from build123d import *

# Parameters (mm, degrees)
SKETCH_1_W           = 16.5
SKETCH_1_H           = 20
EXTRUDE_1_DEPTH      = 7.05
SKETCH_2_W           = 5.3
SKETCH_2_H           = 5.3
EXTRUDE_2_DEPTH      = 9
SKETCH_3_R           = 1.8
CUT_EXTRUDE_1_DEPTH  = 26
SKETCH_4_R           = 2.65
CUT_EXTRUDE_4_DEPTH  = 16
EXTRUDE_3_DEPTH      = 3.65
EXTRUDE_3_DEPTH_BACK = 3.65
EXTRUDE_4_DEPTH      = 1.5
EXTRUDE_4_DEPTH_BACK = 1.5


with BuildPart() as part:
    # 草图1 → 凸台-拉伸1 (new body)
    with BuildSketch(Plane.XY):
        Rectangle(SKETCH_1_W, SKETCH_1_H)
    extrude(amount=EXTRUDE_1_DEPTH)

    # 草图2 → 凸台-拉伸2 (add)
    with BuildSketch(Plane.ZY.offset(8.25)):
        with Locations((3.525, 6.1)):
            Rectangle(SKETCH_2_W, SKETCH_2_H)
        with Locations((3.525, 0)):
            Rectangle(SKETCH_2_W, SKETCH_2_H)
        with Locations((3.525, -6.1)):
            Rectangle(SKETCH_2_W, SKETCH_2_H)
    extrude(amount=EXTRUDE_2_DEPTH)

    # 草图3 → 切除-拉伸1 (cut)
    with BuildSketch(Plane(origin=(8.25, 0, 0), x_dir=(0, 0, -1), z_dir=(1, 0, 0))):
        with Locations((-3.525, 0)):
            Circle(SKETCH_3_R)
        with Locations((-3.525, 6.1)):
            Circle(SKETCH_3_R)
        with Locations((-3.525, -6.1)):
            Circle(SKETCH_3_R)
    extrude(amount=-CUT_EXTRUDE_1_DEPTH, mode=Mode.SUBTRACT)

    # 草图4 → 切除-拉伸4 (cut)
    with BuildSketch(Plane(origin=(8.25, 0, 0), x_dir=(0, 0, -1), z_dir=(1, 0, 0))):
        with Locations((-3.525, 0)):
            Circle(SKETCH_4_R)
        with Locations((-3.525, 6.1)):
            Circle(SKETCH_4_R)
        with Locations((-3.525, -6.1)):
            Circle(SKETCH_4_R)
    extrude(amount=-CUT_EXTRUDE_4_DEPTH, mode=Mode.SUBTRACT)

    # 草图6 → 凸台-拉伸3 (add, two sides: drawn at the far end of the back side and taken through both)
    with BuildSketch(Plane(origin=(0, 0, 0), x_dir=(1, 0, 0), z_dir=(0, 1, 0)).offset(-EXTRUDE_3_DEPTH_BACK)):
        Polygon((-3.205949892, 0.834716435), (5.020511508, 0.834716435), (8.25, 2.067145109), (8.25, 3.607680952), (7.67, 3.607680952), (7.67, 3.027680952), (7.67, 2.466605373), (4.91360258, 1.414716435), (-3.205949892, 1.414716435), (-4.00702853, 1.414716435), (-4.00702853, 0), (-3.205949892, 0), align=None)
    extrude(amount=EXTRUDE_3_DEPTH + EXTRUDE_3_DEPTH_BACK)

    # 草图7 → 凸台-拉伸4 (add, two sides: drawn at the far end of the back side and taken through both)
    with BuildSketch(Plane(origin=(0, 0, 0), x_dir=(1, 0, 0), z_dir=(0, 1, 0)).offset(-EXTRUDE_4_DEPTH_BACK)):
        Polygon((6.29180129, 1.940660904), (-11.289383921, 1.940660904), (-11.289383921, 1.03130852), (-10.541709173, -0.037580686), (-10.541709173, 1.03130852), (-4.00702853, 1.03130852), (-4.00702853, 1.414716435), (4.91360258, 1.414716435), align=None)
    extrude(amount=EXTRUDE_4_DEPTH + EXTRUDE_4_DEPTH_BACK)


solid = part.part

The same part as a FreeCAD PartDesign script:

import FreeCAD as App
import Part
import Sketcher
from FreeCAD import Vector
Q = App.Units.Quantity

doc = App.newDocument("Part")
params = doc.addObject("Spreadsheet::Sheet", "Params")
for row, (alias, value) in enumerate([
    ("sketch1_height", "20 mm"),
    ("sketch1_width", "16.5 mm"),
    ("pad1_length", "7.05 mm"),
    ("sketch2_width", "5.3 mm"),
    ("pad2_length", "9 mm"),
    ("sketch3_diameter", "3.6 mm"),
    ("pocket1_length", "26 mm"),
    ("sketch4_diameter", "5.3 mm"),
    ("pocket2_length", "16 mm"),
    ("sketch5_width", "0.58 mm"),
    ("pad3_length", "3.65 mm"),
    ("pad3_length2", "3.65 mm"),
    ("pad4_length", "1.5 mm"),
    ("pad4_length2", "1.5 mm"),
], start=1):
    params.set(f"A{row}", alias)
    params.set(f"B{row}", "=" + value)
    params.setAlias(f"B{row}", alias)

body = doc.addObject("PartDesign::Body", "Body")

# Sketch on XY plane
sketch1 = body.newObject("Sketcher::SketchObject", "Sketch")
sketch1.AttachmentSupport = (doc.getObject("XY_Plane"), [""])
sketch1.MapMode = "FlatFace"
sketch1.addGeometry(Part.LineSegment(Vector(-8, 10, 0), Vector(-8, -10, 0)), False)
sketch1.addGeometry(Part.LineSegment(Vector(-8, -10, 0), Vector(8, -10, 0)), False)
sketch1.addGeometry(Part.LineSegment(Vector(8, -10, 0), Vector(8, 10, 0)), False)
sketch1.addGeometry(Part.LineSegment(Vector(8, 10, 0), Vector(-8, 10, 0)), False)
sketch1.addConstraint(Sketcher.Constraint("Coincident", 0, 2, 1, 1))
sketch1.addConstraint(Sketcher.Constraint("Coincident", 1, 2, 2, 1))
sketch1.addConstraint(Sketcher.Constraint("Coincident", 2, 2, 3, 1))
sketch1.addConstraint(Sketcher.Constraint("Coincident", 3, 2, 0, 1))
sketch1.addConstraint(Sketcher.Constraint("Vertical", 0))
sketch1.addConstraint(Sketcher.Constraint("Horizontal", 1))
sketch1.addConstraint(Sketcher.Constraint("Vertical", 2))
sketch1.addConstraint(Sketcher.Constraint("Horizontal", 3))
sketch1.addConstraint(Sketcher.Constraint("Symmetric", 0, 2, 2, 2, -1, 1))
sketch1.addConstraint(Sketcher.Constraint("DistanceY", 0, 2, 0, 1, Q("20 mm")))
sketch1.addConstraint(Sketcher.Constraint("DistanceX", 1, 1, 1, 2, Q("16.5 mm")))
sketch1.setExpression("Constraints[9]", "Params.sketch1_height")
sketch1.setExpression("Constraints[10]", "Params.sketch1_width")
pad1 = body.newObject("PartDesign::Pad", "Pad")
pad1.Profile = sketch1
pad1.setExpression("Length", "Params.pad1_length")

# Sketch on YZ plane
sketch2 = body.newObject("Sketcher::SketchObject", "Sketch001")
sketch2.AttachmentSupport = (doc.getObject("YZ_Plane"), [""])
sketch2.MapMode = "FlatFace"
sketch2.AttachmentOffset = App.Placement(Vector(0, 0, -8.25), App.Rotation())
sketch2.addGeometry(Part.LineSegment(Vector(9, 1, 0), Vector(3, 1, 0)), False)
sketch2.addGeometry(Part.LineSegment(Vector(3, 1, 0), Vector(3, 6, 0)), False)
sketch2.addGeometry(Part.LineSegment(Vector(3, 6, 0), Vector(9, 6, 0)), False)
sketch2.addGeometry(Part.LineSegment(Vector(9, 6, 0), Vector(9, 1, 0)), False)
sketch2.addGeometry(Part.LineSegment(Vector(3, 1, 0), Vector(-3, 1, 0)), False)
sketch2.addGeometry(Part.LineSegment(Vector(-3, 1, 0), Vector(-3, 6, 0)), False)
sketch2.addGeometry(Part.LineSegment(Vector(-3, 6, 0), Vector(3, 6, 0)), False)
sketch2.addGeometry(Part.LineSegment(Vector(3, 6, 0), Vector(3, 1, 0)), False)
sketch2.addGeometry(Part.LineSegment(Vector(-3, 1, 0), Vector(-9, 1, 0)), False)
sketch2.addGeometry(Part.LineSegment(Vector(-9, 1, 0), Vector(-9, 6, 0)), False)
sketch2.addGeometry(Part.LineSegment(Vector(-9, 6, 0), Vector(-3, 6, 0)), False)
sketch2.addGeometry(Part.LineSegment(Vector(-3, 6, 0), Vector(-3, 1, 0)), False)
sketch2.addConstraint(Sketcher.Constraint("Coincident", 0, 2, 1, 1))
sketch2.addConstraint(Sketcher.Constraint("Coincident", 1, 2, 2, 1))
sketch2.addConstraint(Sketcher.Constraint("Coincident", 2, 2, 3, 1))
sketch2.addConstraint(Sketcher.Constraint("Coincident", 3, 2, 0, 1))
sketch2.addConstraint(Sketcher.Constraint("Coincident", 4, 2, 5, 1))
sketch2.addConstraint(Sketcher.Constraint("Coincident", 5, 2, 6, 1))
sketch2.addConstraint(Sketcher.Constraint("Coincident", 6, 2, 7, 1))
sketch2.addConstraint(Sketcher.Constraint("Coincident", 7, 2, 4, 1))
sketch2.addConstraint(Sketcher.Constraint("Coincident", 8, 2, 9, 1))
sketch2.addConstraint(Sketcher.Constraint("Coincident", 9, 2, 10, 1))
sketch2.addConstraint(Sketcher.Constraint("Coincident", 10, 2, 11, 1))
sketch2.addConstraint(Sketcher.Constraint("Coincident", 11, 2, 8, 1))
sketch2.addConstraint(Sketcher.Constraint("Horizontal", 0))
sketch2.addConstraint(Sketcher.Constraint("Vertical", 1))
sketch2.addConstraint(Sketcher.Constraint("Horizontal", 2))
sketch2.addConstraint(Sketcher.Constraint("Vertical", 3))
sketch2.addConstraint(Sketcher.Constraint("Horizontal", 4))
sketch2.addConstraint(Sketcher.Constraint("Vertical", 5))
sketch2.addConstraint(Sketcher.Constraint("Horizontal", 6))
sketch2.addConstraint(Sketcher.Constraint("Vertical", 7))
sketch2.addConstraint(Sketcher.Constraint("Horizontal", 8))
sketch2.addConstraint(Sketcher.Constraint("Vertical", 9))
sketch2.addConstraint(Sketcher.Constraint("Horizontal", 10))
sketch2.addConstraint(Sketcher.Constraint("Vertical", 11))
sketch2.addConstraint(Sketcher.Constraint("Symmetric", 3, 2, 8, 2, -2))
sketch2.addConstraint(Sketcher.Constraint("Symmetric", 1, 2, 10, 2, -2))
sketch2.addConstraint(Sketcher.Constraint("Horizontal", 3, 2, 4, 2))
sketch2.addConstraint(Sketcher.Constraint("Horizontal", 2, 2, 5, 2))
sketch2.addConstraint(Sketcher.Constraint("Equal", 2, 4))
sketch2.addConstraint(Sketcher.Constraint("Equal", 10, 1))
sketch2.addConstraint(Sketcher.Constraint("DistanceX", 0, 2, 0, 1, Q("5.3 mm")))
sketch2.addConstraint(Sketcher.Constraint("DistanceX", 4, 2, 0, 2, Q("6.1 mm")))
sketch2.addConstraint(Sketcher.Constraint("DistanceX", 8, 2, 4, 2, Q("6.1 mm")))
sketch2.addConstraint(Sketcher.Constraint("DistanceY", -1, 1, 0, 2, Q("0.875 mm")))
sketch2.setExpression("Constraints[30]", "Params.sketch2_width")
pad2 = body.newObject("PartDesign::Pad", "Pad001")
pad2.Profile = sketch2
pad2.setExpression("Length", "Params.pad2_length")
pad2.Reversed = True

# Sketch on YZ plane
sketch3 = body.newObject("Sketcher::SketchObject", "Sketch002")
sketch3.AttachmentSupport = (doc.getObject("YZ_Plane"), [""])
sketch3.MapMode = "FlatFace"
sketch3.AttachmentOffset = App.Placement(Vector(0, 0, 8.25), App.Rotation())
sketch3.addGeometry(Part.Circle(Vector(0, 3.5, 0), Vector(0, 0, 1), 1.8), False)
sketch3.addGeometry(Part.Circle(Vector(6.1, 3.5, 0), Vector(0, 0, 1), 1.8), False)
sketch3.addGeometry(Part.Circle(Vector(-6.1, 3.5, 0), Vector(0, 0, 1), 1.8), False)
sketch3.addConstraint(Sketcher.Constraint("Equal", 0, 1))
sketch3.addConstraint(Sketcher.Constraint("Equal", 1, 2))
sketch3.addConstraint(Sketcher.Constraint("Symmetric", 1, 3, 2, 3, -2))
sketch3.addConstraint(Sketcher.Constraint("PointOnObject", 0, 3, -2))
sketch3.addConstraint(Sketcher.Constraint("Horizontal", 0, 3, 1, 3))
sketch3.addConstraint(Sketcher.Constraint("Diameter", 0, Q("3.6 mm")))
sketch3.addConstraint(Sketcher.Constraint("DistanceX", -1, 1, 1, 3, Q("6.1 mm")))
sketch3.addConstraint(Sketcher.Constraint("DistanceY", -1, 1, 0, 3, Q("3.525 mm")))
sketch3.setExpression("Constraints[5]", "Params.sketch3_diameter")
pocket1 = body.newObject("PartDesign::Pocket", "Pocket")
pocket1.Profile = sketch3
pocket1.setExpression("Length", "Params.pocket1_length")

# Sketch on YZ plane
sketch4 = body.newObject("Sketcher::SketchObject", "Sketch003")
sketch4.AttachmentSupport = (doc.getObject("YZ_Plane"), [""])
sketch4.MapMode = "FlatFace"
sketch4.AttachmentOffset = App.Placement(Vector(0, 0, 8.25), App.Rotation())
sketch4.addGeometry(Part.Circle(Vector(0, 3.5, 0), Vector(0, 0, 1), 2.6), False)
sketch4.addGeometry(Part.Circle(Vector(6.1, 3.5, 0), Vector(0, 0, 1), 2.6), False)
sketch4.addGeometry(Part.Circle(Vector(-6.1, 3.5, 0), Vector(0, 0, 1), 2.6), False)
sketch4.addConstraint(Sketcher.Constraint("Equal", 0, 1))
sketch4.addConstraint(Sketcher.Constraint("Equal", 1, 2))
sketch4.addConstraint(Sketcher.Constraint("Symmetric", 1, 3, 2, 3, -2))
sketch4.addConstraint(Sketcher.Constraint("PointOnObject", 0, 3, -2))
sketch4.addConstraint(Sketcher.Constraint("Horizontal", 0, 3, 1, 3))
sketch4.addConstraint(Sketcher.Constraint("Diameter", 0, Q("5.3 mm")))
sketch4.addConstraint(Sketcher.Constraint("DistanceX", -1, 1, 1, 3, Q("6.1 mm")))
sketch4.addConstraint(Sketcher.Constraint("DistanceY", -1, 1, 0, 3, Q("3.525 mm")))
sketch4.setExpression("Constraints[5]", "Params.sketch4_diameter")
pocket2 = body.newObject("PartDesign::Pocket", "Pocket001")
pocket2.Profile = sketch4
pocket2.setExpression("Length", "Params.pocket2_length")

# Sketch on XZ plane
sketch5 = body.newObject("Sketcher::SketchObject", "Sketch004")
sketch5.AttachmentSupport = (doc.getObject("XZ_Plane"), [""])
sketch5.MapMode = "FlatFace"
sketch5.addGeometry(Part.LineSegment(Vector(-3.2, -0.8, 0), Vector(5, -0.8, 0)), False)
sketch5.addGeometry(Part.LineSegment(Vector(5, -0.8, 0), Vector(8.2, -2.1, 0)), False)
sketch5.addGeometry(Part.LineSegment(Vector(8.2, -2.1, 0), Vector(8.2, -3.6, 0)), False)
sketch5.addGeometry(Part.LineSegment(Vector(8.2, -3.6, 0), Vector(7.7, -3.6, 0)), False)
sketch5.addGeometry(Part.LineSegment(Vector(7.7, -3.6, 0), Vector(7.7, -2.5, 0)), False)
sketch5.addGeometry(Part.LineSegment(Vector(7.7, -2.5, 0), Vector(4.9, -1.4, 0)), False)
sketch5.addGeometry(Part.LineSegment(Vector(4.9, -1.4, 0), Vector(-4, -1.4, 0)), False)
sketch5.addGeometry(Part.LineSegment(Vector(-4, -1.4, 0), Vector(-4, 0, 0)), False)
sketch5.addGeometry(Part.LineSegment(Vector(-4, 0, 0), Vector(-3.2, 0, 0)), False)
sketch5.addGeometry(Part.LineSegment(Vector(-3.2, 0, 0), Vector(-3.2, -0.8, 0)), False)
sketch5.addConstraint(Sketcher.Constraint("Coincident", 0, 2, 1, 1))
sketch5.addConstraint(Sketcher.Constraint("Coincident", 1, 2, 2, 1))
sketch5.addConstraint(Sketcher.Constraint("Coincident", 2, 2, 3, 1))
sketch5.addConstraint(Sketcher.Constraint("Coincident", 3, 2, 4, 1))
sketch5.addConstraint(Sketcher.Constraint("Coincident", 4, 2, 5, 1))
sketch5.addConstraint(Sketcher.Constraint("Coincident", 5, 2, 6, 1))
sketch5.addConstraint(Sketcher.Constraint("Coincident", 6, 2, 7, 1))
sketch5.addConstraint(Sketcher.Constraint("Coincident", 7, 2, 8, 1))
sketch5.addConstraint(Sketcher.Constraint("Coincident", 8, 2, 9, 1))
sketch5.addConstraint(Sketcher.Constraint("Coincident", 9, 2, 0, 1))
sketch5.addConstraint(Sketcher.Constraint("Horizontal", 0))
sketch5.addConstraint(Sketcher.Constraint("Vertical", 2))
sketch5.addConstraint(Sketcher.Constraint("Horizontal", 3))
sketch5.addConstraint(Sketcher.Constraint("Vertical", 4))
sketch5.addConstraint(Sketcher.Constraint("Horizontal", 6))
sketch5.addConstraint(Sketcher.Constraint("Vertical", 7))
sketch5.addConstraint(Sketcher.Constraint("Horizontal", 8))
sketch5.addConstraint(Sketcher.Constraint("Vertical", 9))
sketch5.addConstraint(Sketcher.Constraint("PointOnObject", 7, 2, -1))
sketch5.addConstraint(Sketcher.Constraint("Parallel", 1, 5))
sketch5.addConstraint(Sketcher.Constraint("DistanceX", 3, 2, 3, 1, Q("0.58 mm")))
sketch5.addConstraint(Sketcher.Constraint("DistanceX", -1, 1, 1, 2, Q("8.25 mm")))
sketch5.addConstraint(Sketcher.Constraint("DistanceY", 5, 2, 0, 2, Q("0.58 mm")))
sketch5.addConstraint(Sketcher.Constraint("DistanceX", 0, 1, 0, 2, Q("8.226461 mm")))
sketch5.addConstraint(Sketcher.Constraint("DistanceX", 6, 2, 6, 1, Q("8.920631 mm")))
sketch5.addConstraint(Sketcher.Constraint("DistanceX", 8, 1, 8, 2, Q("0.801079 mm")))
sketch5.addConstraint(Sketcher.Constraint("DistanceY", 2, 2, 2, 1, Q("1.540536 mm")))
sketch5.addConstraint(Sketcher.Constraint("DistanceY", 4, 1, 4, 2, Q("1.141076 mm")))
sketch5.addConstraint(Sketcher.Constraint("DistanceY", 7, 1, 7, 2, Q("1.414716 mm")))
sketch5.addConstraint(Sketcher.Constraint("DistanceX", -1, 1, 0, 2, Q("5.020512 mm")))
sketch5.setExpression("Constraints[20]", "Params.sketch5_width")
pad3 = body.newObject("PartDesign::Pad", "Pad002")
pad3.Profile = sketch5
pad3.Type = "TwoLengths"
pad3.setExpression("Length", "Params.pad3_length")
pad3.setExpression("Length2", "Params.pad3_length2")
pad3.Reversed = True

# Sketch on XZ plane
sketch6 = body.newObject("Sketcher::SketchObject", "Sketch005")
sketch6.AttachmentSupport = (doc.getObject("XZ_Plane"), [""])
sketch6.MapMode = "FlatFace"
sketch6.addGeometry(Part.LineSegment(Vector(6.29, -1.94, 0), Vector(-11.29, -1.94, 0)), False)
sketch6.addGeometry(Part.LineSegment(Vector(-11.29, -1.94, 0), Vector(-11.29, -1.03, 0)), False)
sketch6.addGeometry(Part.LineSegment(Vector(-11.29, -1.03, 0), Vector(-10.54, 0.04, 0)), False)
sketch6.addGeometry(Part.LineSegment(Vector(-10.54, 0.04, 0), Vector(-10.54, -1.03, 0)), False)
sketch6.addGeometry(Part.LineSegment(Vector(-10.54, -1.03, 0), Vector(-4.01, -1.03, 0)), False)
sketch6.addGeometry(Part.LineSegment(Vector(-4.01, -1.03, 0), Vector(-4.01, -1.41, 0)), False)
sketch6.addGeometry(Part.LineSegment(Vector(-4.01, -1.41, 0), Vector(4.91, -1.41, 0)), False)
sketch6.addGeometry(Part.LineSegment(Vector(4.91, -1.41, 0), Vector(6.29, -1.94, 0)), False)
sketch6.addConstraint(Sketcher.Constraint("Coincident", 0, 2, 1, 1))
sketch6.addConstraint(Sketcher.Constraint("Coincident", 1, 2, 2, 1))
sketch6.addConstraint(Sketcher.Constraint("Coincident", 2, 2, 3, 1))
sketch6.addConstraint(Sketcher.Constraint("Coincident", 3, 2, 4, 1))
sketch6.addConstraint(Sketcher.Constraint("Coincident", 4, 2, 5, 1))
sketch6.addConstraint(Sketcher.Constraint("Coincident", 5, 2, 6, 1))
sketch6.addConstraint(Sketcher.Constraint("Coincident", 6, 2, 7, 1))
sketch6.addConstraint(Sketcher.Constraint("Coincident", 7, 2, 0, 1))
sketch6.addConstraint(Sketcher.Constraint("Horizontal", 0))
sketch6.addConstraint(Sketcher.Constraint("Vertical", 1))
sketch6.addConstraint(Sketcher.Constraint("Vertical", 3))
sketch6.addConstraint(Sketcher.Constraint("Horizontal", 4))
sketch6.addConstraint(Sketcher.Constraint("Vertical", 5))
sketch6.addConstraint(Sketcher.Constraint("Horizontal", 6))
sketch6.addConstraint(Sketcher.Constraint("Horizontal", 1, 2, 3, 2))
sketch6.addConstraint(Sketcher.Constraint("DistanceX", 4, 1, 4, 2, Q("6.534681 mm")))
sketch6.addConstraint(Sketcher.Constraint("DistanceX", 6, 1, 6, 2, Q("8.920631 mm")))
sketch6.addConstraint(Sketcher.Constraint("DistanceY", 3, 2, 3, 1, Q("1.068889 mm")))
sketch6.addConstraint(Sketcher.Constraint("DistanceX", -1, 1, 7, 2, Q("6.291801 mm")))
sketch6.addConstraint(Sketcher.Constraint("DistanceX", 6, 2, 7, 2, Q("1.378199 mm")))
sketch6.addConstraint(Sketcher.Constraint("Distance", 2, Q("1.304432 mm")))
sketch6.addConstraint(Sketcher.Constraint("DistanceY", 1, 1, 1, 2, Q("0.909352 mm")))
sketch6.addConstraint(Sketcher.Constraint("DistanceY", 5, 2, 5, 1, Q("0.383408 mm")))
sketch6.addConstraint(Sketcher.Constraint("DistanceY", 0, 2, -1, 1, Q("1.940661 mm")))
pad4 = body.newObject("PartDesign::Pad", "Pad003")
pad4.Profile = sketch6
pad4.Type = "TwoLengths"
pad4.setExpression("Length", "Params.pad4_length")
pad4.setExpression("Length2", "Params.pad4_length2")
pad4.Reversed = True

doc.recompute()
